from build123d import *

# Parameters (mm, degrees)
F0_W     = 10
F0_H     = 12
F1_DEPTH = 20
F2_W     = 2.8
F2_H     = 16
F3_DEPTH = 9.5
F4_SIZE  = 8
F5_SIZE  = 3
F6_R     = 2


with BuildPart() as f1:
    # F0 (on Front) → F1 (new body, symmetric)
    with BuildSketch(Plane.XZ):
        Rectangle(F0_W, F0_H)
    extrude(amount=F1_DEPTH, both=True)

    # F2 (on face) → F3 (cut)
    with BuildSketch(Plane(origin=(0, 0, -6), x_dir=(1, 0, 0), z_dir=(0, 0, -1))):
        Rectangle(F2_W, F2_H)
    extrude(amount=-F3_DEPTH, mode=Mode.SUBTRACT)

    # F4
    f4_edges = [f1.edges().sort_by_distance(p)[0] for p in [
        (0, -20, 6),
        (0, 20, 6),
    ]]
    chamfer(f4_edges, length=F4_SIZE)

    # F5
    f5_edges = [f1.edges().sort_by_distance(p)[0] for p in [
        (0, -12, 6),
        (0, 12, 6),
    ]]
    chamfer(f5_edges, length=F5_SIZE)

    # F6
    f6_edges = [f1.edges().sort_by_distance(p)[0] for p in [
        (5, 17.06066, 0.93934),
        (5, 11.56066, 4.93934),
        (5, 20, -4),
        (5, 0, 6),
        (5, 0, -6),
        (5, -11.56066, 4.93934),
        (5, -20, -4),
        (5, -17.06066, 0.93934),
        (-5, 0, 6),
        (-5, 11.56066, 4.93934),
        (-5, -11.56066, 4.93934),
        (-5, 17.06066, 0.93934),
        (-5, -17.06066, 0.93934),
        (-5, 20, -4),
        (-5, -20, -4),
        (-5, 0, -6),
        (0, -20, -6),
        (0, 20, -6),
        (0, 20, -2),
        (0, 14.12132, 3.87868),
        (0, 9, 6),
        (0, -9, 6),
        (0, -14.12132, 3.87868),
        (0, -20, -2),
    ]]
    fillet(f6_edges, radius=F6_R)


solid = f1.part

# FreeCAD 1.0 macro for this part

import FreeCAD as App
import Part
import Sketcher

V = App.Vector
Q = App.Units.Quantity


def edges_at(feature, points):
    """Names of the edges that pass closest to the given points."""
    edges = feature.Shape.Edges
    near = lambda p: min(range(len(edges)), key=lambda i: edges[i].distToShape(Part.Vertex(*p))[0])
    return sorted({f"Edge{near(p) + 1}" for p in points})

doc = App.newDocument("Part")
body = doc.addObject("PartDesign::Body", "Body")

sketch1 = body.newObject("Sketcher::SketchObject", "Sketch")
sketch1.AttachmentSupport = (doc.getObject("XZ_Plane"), [""])
sketch1.MapMode = "FlatFace"
sketch1.addGeometry([
    Part.LineSegment(V(-5, 6, 0), V(-5, -6, 0)),
    Part.LineSegment(V(-5, -6, 0), V(5, -6, 0)),
    Part.LineSegment(V(5, -6, 0), V(5, 6, 0)),
    Part.LineSegment(V(5, 6, 0), V(-5, 6, 0)),
], False)
sketch1.addConstraint([
    Sketcher.Constraint("Coincident", 0, 2, 1, 1),
    Sketcher.Constraint("Coincident", 1, 2, 2, 1),
    Sketcher.Constraint("Coincident", 2, 2, 3, 1),
    Sketcher.Constraint("Coincident", 3, 2, 0, 1),
    Sketcher.Constraint("Vertical", 0),
    Sketcher.Constraint("Horizontal", 1),
    Sketcher.Constraint("Vertical", 2),
    Sketcher.Constraint("Horizontal", 3),
    Sketcher.Constraint("Symmetric", 0, 2, 2, 2, -1, 1),
    Sketcher.Constraint("DistanceX", 1, 1, 1, 2, Q("10 mm")),
    Sketcher.Constraint("DistanceY", 0, 2, 0, 1, Q("12 mm")),
])
pad1 = body.newObject("PartDesign::Pad", "Pad")
pad1.Profile = sketch1
pad1.Length = 40
pad1.Midplane = True

sketch2 = body.newObject("Sketcher::SketchObject", "Sketch001")
sketch2.AttachmentSupport = (doc.getObject("XY_Plane"), [""])
sketch2.MapMode = "FlatFace"
sketch2.AttachmentOffset = App.Placement(V(0, 0, -6), App.Rotation())
sketch2.addGeometry([
    Part.LineSegment(V(-1.4, -8, 0), V(-1.4, 8, 0)),
    Part.LineSegment(V(-1.4, 8, 0), V(1.4, 8, 0)),
    Part.LineSegment(V(1.4, 8, 0), V(1.4, -8, 0)),
    Part.LineSegment(V(1.4, -8, 0), V(-1.4, -8, 0)),
], False)
sketch2.addConstraint([
    Sketcher.Constraint("Coincident", 0, 2, 1, 1),
    Sketcher.Constraint("Coincident", 1, 2, 2, 1),
    Sketcher.Constraint("Coincident", 2, 2, 3, 1),
    Sketcher.Constraint("Coincident", 3, 2, 0, 1),
    Sketcher.Constraint("Vertical", 0),
    Sketcher.Constraint("Horizontal", 1),
    Sketcher.Constraint("Vertical", 2),
    Sketcher.Constraint("Horizontal", 3),
    Sketcher.Constraint("Symmetric", 0, 2, 2, 2, -1, 1),
    Sketcher.Constraint("DistanceY", 0, 1, 0, 2, Q("16 mm")),
    Sketcher.Constraint("DistanceX", 1, 1, 1, 2, Q("2.8 mm")),
])
pocket1 = body.newObject("PartDesign::Pocket", "Pocket")
pocket1.Profile = sketch2
pocket1.Length = 9.5
pocket1.Reversed = True
doc.recompute()

chamfer = body.newObject("PartDesign::Chamfer", "Chamfer")
chamfer.Base = (pocket1, edges_at(pocket1, [(0, -20, 6), (0, 20, 6)]))
chamfer.Size = 8
doc.recompute()

chamfer2 = body.newObject("PartDesign::Chamfer", "Chamfer001")
chamfer2.Base = (chamfer, edges_at(chamfer, [(0, -12, 6), (0, 12, 6)]))
chamfer2.Size = 3
doc.recompute()

fillet = body.newObject("PartDesign::Fillet", "Fillet")
fillet.Base = (chamfer2, edges_at(chamfer2, [
    (5, 17.061, 0.939),
    (5, 11.561, 4.939),
    (5, 20, -4),
    (5, 0, 6),
    (5, 0, -6),
    (5, -11.561, 4.939),
    (5, -20, -4),
    (5, -17.061, 0.939),
    (-5, 0, 6),
    (-5, 11.561, 4.939),
    (-5, -11.561, 4.939),
    (-5, 17.061, 0.939),
    (-5, -17.061, 0.939),
    (-5, 20, -4),
    (-5, -20, -4),
    (-5, 0, -6),
    (0, -20, -6),
    (0, 20, -6),
    (0, 20, -2),
    (0, 14.121, 3.879),
    (0, 9, 6),
    (0, -9, 6),
    (0, -14.121, 3.879),
    (0, -20, -2),
]))
fillet.Radius = 2

doc.recompute()
